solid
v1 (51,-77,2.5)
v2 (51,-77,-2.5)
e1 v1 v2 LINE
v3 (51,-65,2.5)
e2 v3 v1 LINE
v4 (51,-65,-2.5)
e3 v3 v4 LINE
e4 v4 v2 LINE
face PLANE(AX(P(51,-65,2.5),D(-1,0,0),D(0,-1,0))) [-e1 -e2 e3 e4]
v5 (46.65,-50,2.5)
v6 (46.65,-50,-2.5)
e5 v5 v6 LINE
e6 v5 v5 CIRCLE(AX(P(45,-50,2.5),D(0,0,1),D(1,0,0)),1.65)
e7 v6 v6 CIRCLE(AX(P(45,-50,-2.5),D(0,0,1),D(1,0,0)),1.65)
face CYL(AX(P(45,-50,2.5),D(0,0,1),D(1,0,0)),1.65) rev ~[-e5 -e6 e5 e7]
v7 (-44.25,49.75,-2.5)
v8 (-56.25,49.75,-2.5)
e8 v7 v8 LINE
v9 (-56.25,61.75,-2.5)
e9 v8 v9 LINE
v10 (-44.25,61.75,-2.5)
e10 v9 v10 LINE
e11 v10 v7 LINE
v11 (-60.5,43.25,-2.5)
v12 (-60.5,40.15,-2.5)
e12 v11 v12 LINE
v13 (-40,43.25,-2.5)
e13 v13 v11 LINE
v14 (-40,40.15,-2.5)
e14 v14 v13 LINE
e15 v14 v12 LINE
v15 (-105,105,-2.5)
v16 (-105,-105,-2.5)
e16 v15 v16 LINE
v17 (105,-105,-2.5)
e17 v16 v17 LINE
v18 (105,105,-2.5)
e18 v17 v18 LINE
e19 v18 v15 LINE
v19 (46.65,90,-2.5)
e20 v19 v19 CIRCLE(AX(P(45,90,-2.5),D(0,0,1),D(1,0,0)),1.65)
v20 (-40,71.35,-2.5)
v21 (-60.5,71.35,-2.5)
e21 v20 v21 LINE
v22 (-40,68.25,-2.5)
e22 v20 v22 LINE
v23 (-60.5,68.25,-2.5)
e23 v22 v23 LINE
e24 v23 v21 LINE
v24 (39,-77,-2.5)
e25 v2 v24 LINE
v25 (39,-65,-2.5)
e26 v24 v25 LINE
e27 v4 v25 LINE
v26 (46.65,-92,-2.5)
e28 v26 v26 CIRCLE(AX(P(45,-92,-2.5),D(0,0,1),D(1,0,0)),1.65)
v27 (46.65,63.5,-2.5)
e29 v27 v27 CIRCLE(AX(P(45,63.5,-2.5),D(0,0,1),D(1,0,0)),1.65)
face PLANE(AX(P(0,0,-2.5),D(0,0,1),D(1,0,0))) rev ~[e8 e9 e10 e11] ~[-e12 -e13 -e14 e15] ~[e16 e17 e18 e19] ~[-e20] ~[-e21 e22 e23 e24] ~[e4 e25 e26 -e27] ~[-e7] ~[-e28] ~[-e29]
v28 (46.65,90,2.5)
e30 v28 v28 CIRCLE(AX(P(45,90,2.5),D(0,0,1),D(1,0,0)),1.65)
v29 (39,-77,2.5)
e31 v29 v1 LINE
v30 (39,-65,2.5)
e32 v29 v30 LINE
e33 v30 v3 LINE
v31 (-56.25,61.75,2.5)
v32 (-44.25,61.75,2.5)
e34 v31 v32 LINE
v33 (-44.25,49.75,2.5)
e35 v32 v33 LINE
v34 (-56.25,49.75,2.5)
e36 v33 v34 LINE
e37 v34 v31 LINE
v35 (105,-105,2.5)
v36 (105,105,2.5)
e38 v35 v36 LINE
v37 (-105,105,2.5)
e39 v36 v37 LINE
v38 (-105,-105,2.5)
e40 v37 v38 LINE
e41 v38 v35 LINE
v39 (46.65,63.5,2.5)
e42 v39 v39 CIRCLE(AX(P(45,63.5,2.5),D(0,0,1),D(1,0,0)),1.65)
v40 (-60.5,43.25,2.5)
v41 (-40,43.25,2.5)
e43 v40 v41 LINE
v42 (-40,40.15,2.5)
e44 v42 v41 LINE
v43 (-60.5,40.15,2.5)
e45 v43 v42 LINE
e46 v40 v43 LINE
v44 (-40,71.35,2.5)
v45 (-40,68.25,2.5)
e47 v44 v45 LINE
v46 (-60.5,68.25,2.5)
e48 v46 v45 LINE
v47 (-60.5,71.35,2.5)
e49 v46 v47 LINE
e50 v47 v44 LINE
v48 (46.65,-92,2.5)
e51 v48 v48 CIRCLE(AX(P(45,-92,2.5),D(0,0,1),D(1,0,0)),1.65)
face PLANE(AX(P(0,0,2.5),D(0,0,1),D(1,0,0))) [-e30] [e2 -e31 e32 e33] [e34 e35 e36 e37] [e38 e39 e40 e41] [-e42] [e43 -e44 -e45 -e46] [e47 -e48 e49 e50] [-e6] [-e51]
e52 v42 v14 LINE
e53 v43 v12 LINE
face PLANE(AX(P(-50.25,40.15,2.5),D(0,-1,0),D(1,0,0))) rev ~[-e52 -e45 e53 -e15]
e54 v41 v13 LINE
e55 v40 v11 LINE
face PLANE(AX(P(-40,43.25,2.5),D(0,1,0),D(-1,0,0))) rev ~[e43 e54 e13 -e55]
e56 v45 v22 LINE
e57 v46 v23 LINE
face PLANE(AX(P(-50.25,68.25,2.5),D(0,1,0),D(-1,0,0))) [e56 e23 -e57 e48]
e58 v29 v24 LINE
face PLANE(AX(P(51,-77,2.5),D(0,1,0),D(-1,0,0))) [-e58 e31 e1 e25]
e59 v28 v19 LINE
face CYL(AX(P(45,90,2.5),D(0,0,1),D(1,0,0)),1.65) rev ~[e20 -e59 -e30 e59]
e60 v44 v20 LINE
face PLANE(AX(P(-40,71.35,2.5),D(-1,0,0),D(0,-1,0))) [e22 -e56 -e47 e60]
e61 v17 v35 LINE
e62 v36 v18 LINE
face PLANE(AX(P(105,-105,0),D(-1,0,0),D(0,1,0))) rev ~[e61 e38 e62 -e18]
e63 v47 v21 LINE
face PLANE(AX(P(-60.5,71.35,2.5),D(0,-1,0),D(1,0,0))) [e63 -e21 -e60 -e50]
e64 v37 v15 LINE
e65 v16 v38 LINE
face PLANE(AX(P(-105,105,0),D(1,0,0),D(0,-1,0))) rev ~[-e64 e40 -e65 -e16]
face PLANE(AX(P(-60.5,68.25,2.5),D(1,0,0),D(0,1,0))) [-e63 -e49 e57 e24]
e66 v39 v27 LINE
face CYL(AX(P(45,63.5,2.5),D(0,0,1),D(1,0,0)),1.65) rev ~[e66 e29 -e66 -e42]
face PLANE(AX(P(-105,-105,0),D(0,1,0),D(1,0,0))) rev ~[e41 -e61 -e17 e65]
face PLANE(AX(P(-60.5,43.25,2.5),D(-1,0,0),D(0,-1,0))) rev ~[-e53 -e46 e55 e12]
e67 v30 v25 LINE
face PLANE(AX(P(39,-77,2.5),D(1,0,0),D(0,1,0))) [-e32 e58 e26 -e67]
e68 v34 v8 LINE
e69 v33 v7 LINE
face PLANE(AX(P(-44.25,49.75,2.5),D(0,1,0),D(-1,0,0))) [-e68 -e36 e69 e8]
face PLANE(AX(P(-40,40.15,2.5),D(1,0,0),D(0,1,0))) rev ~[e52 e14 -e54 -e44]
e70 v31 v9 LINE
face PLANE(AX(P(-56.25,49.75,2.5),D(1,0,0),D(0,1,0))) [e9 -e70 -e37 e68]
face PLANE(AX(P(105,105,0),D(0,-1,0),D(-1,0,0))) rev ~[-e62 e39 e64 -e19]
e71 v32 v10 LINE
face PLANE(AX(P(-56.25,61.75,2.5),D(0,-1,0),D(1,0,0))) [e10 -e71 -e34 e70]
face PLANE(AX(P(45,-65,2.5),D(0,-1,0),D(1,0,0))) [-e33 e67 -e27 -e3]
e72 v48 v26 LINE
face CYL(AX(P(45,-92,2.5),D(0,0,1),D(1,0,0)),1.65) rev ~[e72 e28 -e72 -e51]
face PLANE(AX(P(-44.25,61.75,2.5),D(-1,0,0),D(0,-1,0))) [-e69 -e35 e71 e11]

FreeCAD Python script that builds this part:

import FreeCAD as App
import Part
import Sketcher

V = App.Vector
Q = App.Units.Quantity

doc = App.newDocument("Part")
body = doc.addObject("PartDesign::Body", "Body")

# Sketch on XY plane
sketch1 = body.newObject("Sketcher::SketchObject", "Sketch")
sketch1.AttachmentSupport = (doc.getObject("XY_Plane"), [""])
sketch1.MapMode = "FlatFace"
sketch1.addGeometry([
    Part.LineSegment(V(-105, 105, 0), V(-105, -105, 0)),
    Part.LineSegment(V(-105, -105, 0), V(105, -105, 0)),
    Part.LineSegment(V(105, -105, 0), V(105, 105, 0)),
    Part.LineSegment(V(105, 105, 0), V(-105, 105, 0)),
], False)
sketch1.addConstraint([
    Sketcher.Constraint("Coincident", 0, 2, 1, 1),
    Sketcher.Constraint("Coincident", 1, 2, 2, 1),
    Sketcher.Constraint("Coincident", 2, 2, 3, 1),
    Sketcher.Constraint("Coincident", 3, 2, 0, 1),
    Sketcher.Constraint("Vertical", 0),
    Sketcher.Constraint("Horizontal", 1),
    Sketcher.Constraint("Vertical", 2),
    Sketcher.Constraint("Horizontal", 3),
    Sketcher.Constraint("Symmetric", 0, 2, 2, 2, -1, 1),
    Sketcher.Constraint("Equal", 3, 0),
    Sketcher.Constraint("DistanceX", 1, 1, 1, 2, Q("210 mm")),
])
pad1 = body.newObject("PartDesign::Pad", "Pad")
pad1.Profile = sketch1
pad1.Length = 5
pad1.Midplane = True

# Sketch on XY plane
sketch2 = body.newObject("Sketcher::SketchObject", "Sketch001")
sketch2.AttachmentSupport = (doc.getObject("XY_Plane"), [""])
sketch2.MapMode = "FlatFace"
sketch2.AttachmentOffset = App.Placement(V(0, 0, 2.5), App.Rotation())
sketch2.addGeometry([
    Part.Circle(V(45, 90, 0), V(0, 0, 1), 1.6),
    Part.Circle(V(45, -92, 0), V(0, 0, 1), 1.6),
    Part.Circle(V(45, -50, 0), V(0, 0, 1), 1.6),
    Part.Circle(V(45, 63.5, 0), V(0, 0, 1), 1.6),
], False)
sketch2.addConstraint([
    Sketcher.Constraint("Equal", 0, 1),
    Sketcher.Constraint("Equal", 1, 2),
    Sketcher.Constraint("Equal", 2, 3),
    Sketcher.Constraint("Vertical", 0, 3, 1, 3),
    Sketcher.Constraint("Vertical", 1, 3, 2, 3),
    Sketcher.Constraint("Vertical", 2, 3, 3, 3),
    Sketcher.Constraint("Diameter", 0, Q("3.3 mm")),
    Sketcher.Constraint("DistanceY", 1, 3, 2, 3, Q("42 mm")),
    Sketcher.Constraint("DistanceY", 2, 3, 0, 3, Q("140 mm")),
    Sketcher.Constraint("DistanceY", 3, 3, 0, 3, Q("26.5 mm")),
    Sketcher.Constraint("DistanceX", -1, 1, 0, 3, Q("45 mm")),
    Sketcher.Constraint("DistanceY", -1, 1, 0, 3, Q("90 mm")),
])
pocket1 = body.newObject("PartDesign::Pocket", "Pocket")
pocket1.Profile = sketch2
pocket1.Length = 5

# Sketch on XY plane
sketch3 = body.newObject("Sketcher::SketchObject", "Sketch002")
sketch3.AttachmentSupport = (doc.getObject("XY_Plane"), [""])
sketch3.MapMode = "FlatFace"
sketch3.AttachmentOffset = App.Placement(V(0, 0, 2.5), App.Rotation())
sketch3.addGeometry([
    Part.LineSegment(V(-60.5, 71.3, 0), V(-60.5, 68.2, 0)),  # 0
    Part.LineSegment(V(-60.5, 68.2, 0), V(-40, 68.2, 0)),  # 1
    Part.LineSegment(V(-40, 68.2, 0), V(-40, 71.3, 0)),  # 2
    Part.LineSegment(V(-40, 71.3, 0), V(-60.5, 71.3, 0)),  # 3
    Part.LineSegment(V(-40, 43.2, 0), V(-60.5, 43.2, 0)),  # 4
    Part.LineSegment(V(-60.5, 43.2, 0), V(-60.5, 40.1, 0)),  # 5
    Part.LineSegment(V(-60.5, 40.1, 0), V(-40, 40.1, 0)),  # 6
    Part.LineSegment(V(-40, 40.1, 0), V(-40, 43.2, 0)),  # 7
], False)
sketch3.addConstraint([
    Sketcher.Constraint("Coincident", 0, 2, 1, 1),
    Sketcher.Constraint("Coincident", 1, 2, 2, 1),
    Sketcher.Constraint("Coincident", 2, 2, 3, 1),
    Sketcher.Constraint("Coincident", 3, 2, 0, 1),
    Sketcher.Constraint("Coincident", 4, 2, 5, 1),
    Sketcher.Constraint("Coincident", 5, 2, 6, 1),
    Sketcher.Constraint("Coincident", 6, 2, 7, 1),
    Sketcher.Constraint("Coincident", 7, 2, 4, 1),
    Sketcher.Constraint("Vertical", 0),
    Sketcher.Constraint("Horizontal", 1),
    Sketcher.Constraint("Vertical", 2),
    Sketcher.Constraint("Horizontal", 3),
    Sketcher.Constraint("Horizontal", 4),
    Sketcher.Constraint("Vertical", 5),
    Sketcher.Constraint("Horizontal", 6),
    Sketcher.Constraint("Vertical", 7),
    Sketcher.Constraint("Vertical", 3, 2, 4, 2),
    Sketcher.Constraint("Vertical", 2, 2, 6, 2),
    Sketcher.Constraint("Equal", 2, 5),
    Sketcher.Constraint("DistanceX", 1, 1, 1, 2, Q("20.5 mm")),
    Sketcher.Constraint("DistanceY", 0, 2, 0, 1, Q("3.1 mm")),
    Sketcher.Constraint("DistanceY", 4, 2, 0, 2, Q("25 mm")),
    Sketcher.Constraint("DistanceX", 1, 2, -1, 1, Q("40 mm")),
    Sketcher.Constraint("DistanceY", -1, 1, 0, 2, Q("68.25 mm")),
])
pocket2 = body.newObject("PartDesign::Pocket", "Pocket001")
pocket2.Profile = sketch3
pocket2.Length = 5

# Sketch on XY plane
sketch4 = body.newObject("Sketcher::SketchObject", "Sketch003")
sketch4.AttachmentSupport = (doc.getObject("XY_Plane"), [""])
sketch4.MapMode = "FlatFace"
sketch4.AttachmentOffset = App.Placement(V(0, 0, 2.5), App.Rotation())
sketch4.addGeometry([
    Part.LineSegment(V(51, -65, 0), V(39, -65, 0)),
    Part.LineSegment(V(39, -65, 0), V(39, -77, 0)),
    Part.LineSegment(V(39, -77, 0), V(51, -77, 0)),
    Part.LineSegment(V(51, -77, 0), V(51, -65, 0)),
], False)
sketch4.addConstraint([
    Sketcher.Constraint("Coincident", 0, 2, 1, 1),
    Sketcher.Constraint("Coincident", 1, 2, 2, 1),
    Sketcher.Constraint("Coincident", 2, 2, 3, 1),
    Sketcher.Constraint("Coincident", 3, 2, 0, 1),
    Sketcher.Constraint("Horizontal", 0),
    Sketcher.Constraint("Vertical", 1),
    Sketcher.Constraint("Horizontal", 2),
    Sketcher.Constraint("Vertical", 3),
    Sketcher.Constraint("Equal", 2, 1),
    Sketcher.Constraint("DistanceX", 0, 2, 0, 1, Q("12 mm")),
    Sketcher.Constraint("DistanceX", -1, 1, 0, 2, Q("39 mm")),
    Sketcher.Constraint("DistanceY", 0, 2, -1, 1, Q("65 mm")),
])
pocket3 = body.newObject("PartDesign::Pocket", "Pocket002")
pocket3.Profile = sketch4
pocket3.Length = 5

# Sketch on XY plane
sketch5 = body.newObject("Sketcher::SketchObject", "Sketch004")
sketch5.AttachmentSupport = (doc.getObject("XY_Plane"), [""])
sketch5.MapMode = "FlatFace"
sketch5.AttachmentOffset = App.Placement(V(0, 0, 2.5), App.Rotation())
sketch5.addGeometry([
    Part.LineSegment(V(-44, 62, 0), V(-56, 62, 0)),
    Part.LineSegment(V(-56, 62, 0), V(-56, 50, 0)),
    Part.LineSegment(V(-56, 50, 0), V(-44, 50, 0)),
    Part.LineSegment(V(-44, 50, 0), V(-44, 62, 0)),
], False)
sketch5.addConstraint([
    Sketcher.Constraint("Coincident", 0, 2, 1, 1),
    Sketcher.Constraint("Coincident", 1, 2, 2, 1),
    Sketcher.Constraint("Coincident", 2, 2, 3, 1),
    Sketcher.Constraint("Coincident", 3, 2, 0, 1),
    Sketcher.Constraint("Horizontal", 0),
    Sketcher.Constraint("Vertical", 1),
    Sketcher.Constraint("Horizontal", 2),
    Sketcher.Constraint("Vertical", 3),
    Sketcher.Constraint("Equal", 2, 1),
    Sketcher.Constraint("DistanceX", 0, 2, 0, 1, Q("12 mm")),
    Sketcher.Constraint("DistanceX", 0, 2, -1, 1, Q("56.25 mm")),
    Sketcher.Constraint("DistanceY", -1, 1, 0, 2, Q("61.75 mm")),
])
pocket4 = body.newObject("PartDesign::Pocket", "Pocket003")
pocket4.Profile = sketch5
pocket4.Length = 5

doc.recompute()
